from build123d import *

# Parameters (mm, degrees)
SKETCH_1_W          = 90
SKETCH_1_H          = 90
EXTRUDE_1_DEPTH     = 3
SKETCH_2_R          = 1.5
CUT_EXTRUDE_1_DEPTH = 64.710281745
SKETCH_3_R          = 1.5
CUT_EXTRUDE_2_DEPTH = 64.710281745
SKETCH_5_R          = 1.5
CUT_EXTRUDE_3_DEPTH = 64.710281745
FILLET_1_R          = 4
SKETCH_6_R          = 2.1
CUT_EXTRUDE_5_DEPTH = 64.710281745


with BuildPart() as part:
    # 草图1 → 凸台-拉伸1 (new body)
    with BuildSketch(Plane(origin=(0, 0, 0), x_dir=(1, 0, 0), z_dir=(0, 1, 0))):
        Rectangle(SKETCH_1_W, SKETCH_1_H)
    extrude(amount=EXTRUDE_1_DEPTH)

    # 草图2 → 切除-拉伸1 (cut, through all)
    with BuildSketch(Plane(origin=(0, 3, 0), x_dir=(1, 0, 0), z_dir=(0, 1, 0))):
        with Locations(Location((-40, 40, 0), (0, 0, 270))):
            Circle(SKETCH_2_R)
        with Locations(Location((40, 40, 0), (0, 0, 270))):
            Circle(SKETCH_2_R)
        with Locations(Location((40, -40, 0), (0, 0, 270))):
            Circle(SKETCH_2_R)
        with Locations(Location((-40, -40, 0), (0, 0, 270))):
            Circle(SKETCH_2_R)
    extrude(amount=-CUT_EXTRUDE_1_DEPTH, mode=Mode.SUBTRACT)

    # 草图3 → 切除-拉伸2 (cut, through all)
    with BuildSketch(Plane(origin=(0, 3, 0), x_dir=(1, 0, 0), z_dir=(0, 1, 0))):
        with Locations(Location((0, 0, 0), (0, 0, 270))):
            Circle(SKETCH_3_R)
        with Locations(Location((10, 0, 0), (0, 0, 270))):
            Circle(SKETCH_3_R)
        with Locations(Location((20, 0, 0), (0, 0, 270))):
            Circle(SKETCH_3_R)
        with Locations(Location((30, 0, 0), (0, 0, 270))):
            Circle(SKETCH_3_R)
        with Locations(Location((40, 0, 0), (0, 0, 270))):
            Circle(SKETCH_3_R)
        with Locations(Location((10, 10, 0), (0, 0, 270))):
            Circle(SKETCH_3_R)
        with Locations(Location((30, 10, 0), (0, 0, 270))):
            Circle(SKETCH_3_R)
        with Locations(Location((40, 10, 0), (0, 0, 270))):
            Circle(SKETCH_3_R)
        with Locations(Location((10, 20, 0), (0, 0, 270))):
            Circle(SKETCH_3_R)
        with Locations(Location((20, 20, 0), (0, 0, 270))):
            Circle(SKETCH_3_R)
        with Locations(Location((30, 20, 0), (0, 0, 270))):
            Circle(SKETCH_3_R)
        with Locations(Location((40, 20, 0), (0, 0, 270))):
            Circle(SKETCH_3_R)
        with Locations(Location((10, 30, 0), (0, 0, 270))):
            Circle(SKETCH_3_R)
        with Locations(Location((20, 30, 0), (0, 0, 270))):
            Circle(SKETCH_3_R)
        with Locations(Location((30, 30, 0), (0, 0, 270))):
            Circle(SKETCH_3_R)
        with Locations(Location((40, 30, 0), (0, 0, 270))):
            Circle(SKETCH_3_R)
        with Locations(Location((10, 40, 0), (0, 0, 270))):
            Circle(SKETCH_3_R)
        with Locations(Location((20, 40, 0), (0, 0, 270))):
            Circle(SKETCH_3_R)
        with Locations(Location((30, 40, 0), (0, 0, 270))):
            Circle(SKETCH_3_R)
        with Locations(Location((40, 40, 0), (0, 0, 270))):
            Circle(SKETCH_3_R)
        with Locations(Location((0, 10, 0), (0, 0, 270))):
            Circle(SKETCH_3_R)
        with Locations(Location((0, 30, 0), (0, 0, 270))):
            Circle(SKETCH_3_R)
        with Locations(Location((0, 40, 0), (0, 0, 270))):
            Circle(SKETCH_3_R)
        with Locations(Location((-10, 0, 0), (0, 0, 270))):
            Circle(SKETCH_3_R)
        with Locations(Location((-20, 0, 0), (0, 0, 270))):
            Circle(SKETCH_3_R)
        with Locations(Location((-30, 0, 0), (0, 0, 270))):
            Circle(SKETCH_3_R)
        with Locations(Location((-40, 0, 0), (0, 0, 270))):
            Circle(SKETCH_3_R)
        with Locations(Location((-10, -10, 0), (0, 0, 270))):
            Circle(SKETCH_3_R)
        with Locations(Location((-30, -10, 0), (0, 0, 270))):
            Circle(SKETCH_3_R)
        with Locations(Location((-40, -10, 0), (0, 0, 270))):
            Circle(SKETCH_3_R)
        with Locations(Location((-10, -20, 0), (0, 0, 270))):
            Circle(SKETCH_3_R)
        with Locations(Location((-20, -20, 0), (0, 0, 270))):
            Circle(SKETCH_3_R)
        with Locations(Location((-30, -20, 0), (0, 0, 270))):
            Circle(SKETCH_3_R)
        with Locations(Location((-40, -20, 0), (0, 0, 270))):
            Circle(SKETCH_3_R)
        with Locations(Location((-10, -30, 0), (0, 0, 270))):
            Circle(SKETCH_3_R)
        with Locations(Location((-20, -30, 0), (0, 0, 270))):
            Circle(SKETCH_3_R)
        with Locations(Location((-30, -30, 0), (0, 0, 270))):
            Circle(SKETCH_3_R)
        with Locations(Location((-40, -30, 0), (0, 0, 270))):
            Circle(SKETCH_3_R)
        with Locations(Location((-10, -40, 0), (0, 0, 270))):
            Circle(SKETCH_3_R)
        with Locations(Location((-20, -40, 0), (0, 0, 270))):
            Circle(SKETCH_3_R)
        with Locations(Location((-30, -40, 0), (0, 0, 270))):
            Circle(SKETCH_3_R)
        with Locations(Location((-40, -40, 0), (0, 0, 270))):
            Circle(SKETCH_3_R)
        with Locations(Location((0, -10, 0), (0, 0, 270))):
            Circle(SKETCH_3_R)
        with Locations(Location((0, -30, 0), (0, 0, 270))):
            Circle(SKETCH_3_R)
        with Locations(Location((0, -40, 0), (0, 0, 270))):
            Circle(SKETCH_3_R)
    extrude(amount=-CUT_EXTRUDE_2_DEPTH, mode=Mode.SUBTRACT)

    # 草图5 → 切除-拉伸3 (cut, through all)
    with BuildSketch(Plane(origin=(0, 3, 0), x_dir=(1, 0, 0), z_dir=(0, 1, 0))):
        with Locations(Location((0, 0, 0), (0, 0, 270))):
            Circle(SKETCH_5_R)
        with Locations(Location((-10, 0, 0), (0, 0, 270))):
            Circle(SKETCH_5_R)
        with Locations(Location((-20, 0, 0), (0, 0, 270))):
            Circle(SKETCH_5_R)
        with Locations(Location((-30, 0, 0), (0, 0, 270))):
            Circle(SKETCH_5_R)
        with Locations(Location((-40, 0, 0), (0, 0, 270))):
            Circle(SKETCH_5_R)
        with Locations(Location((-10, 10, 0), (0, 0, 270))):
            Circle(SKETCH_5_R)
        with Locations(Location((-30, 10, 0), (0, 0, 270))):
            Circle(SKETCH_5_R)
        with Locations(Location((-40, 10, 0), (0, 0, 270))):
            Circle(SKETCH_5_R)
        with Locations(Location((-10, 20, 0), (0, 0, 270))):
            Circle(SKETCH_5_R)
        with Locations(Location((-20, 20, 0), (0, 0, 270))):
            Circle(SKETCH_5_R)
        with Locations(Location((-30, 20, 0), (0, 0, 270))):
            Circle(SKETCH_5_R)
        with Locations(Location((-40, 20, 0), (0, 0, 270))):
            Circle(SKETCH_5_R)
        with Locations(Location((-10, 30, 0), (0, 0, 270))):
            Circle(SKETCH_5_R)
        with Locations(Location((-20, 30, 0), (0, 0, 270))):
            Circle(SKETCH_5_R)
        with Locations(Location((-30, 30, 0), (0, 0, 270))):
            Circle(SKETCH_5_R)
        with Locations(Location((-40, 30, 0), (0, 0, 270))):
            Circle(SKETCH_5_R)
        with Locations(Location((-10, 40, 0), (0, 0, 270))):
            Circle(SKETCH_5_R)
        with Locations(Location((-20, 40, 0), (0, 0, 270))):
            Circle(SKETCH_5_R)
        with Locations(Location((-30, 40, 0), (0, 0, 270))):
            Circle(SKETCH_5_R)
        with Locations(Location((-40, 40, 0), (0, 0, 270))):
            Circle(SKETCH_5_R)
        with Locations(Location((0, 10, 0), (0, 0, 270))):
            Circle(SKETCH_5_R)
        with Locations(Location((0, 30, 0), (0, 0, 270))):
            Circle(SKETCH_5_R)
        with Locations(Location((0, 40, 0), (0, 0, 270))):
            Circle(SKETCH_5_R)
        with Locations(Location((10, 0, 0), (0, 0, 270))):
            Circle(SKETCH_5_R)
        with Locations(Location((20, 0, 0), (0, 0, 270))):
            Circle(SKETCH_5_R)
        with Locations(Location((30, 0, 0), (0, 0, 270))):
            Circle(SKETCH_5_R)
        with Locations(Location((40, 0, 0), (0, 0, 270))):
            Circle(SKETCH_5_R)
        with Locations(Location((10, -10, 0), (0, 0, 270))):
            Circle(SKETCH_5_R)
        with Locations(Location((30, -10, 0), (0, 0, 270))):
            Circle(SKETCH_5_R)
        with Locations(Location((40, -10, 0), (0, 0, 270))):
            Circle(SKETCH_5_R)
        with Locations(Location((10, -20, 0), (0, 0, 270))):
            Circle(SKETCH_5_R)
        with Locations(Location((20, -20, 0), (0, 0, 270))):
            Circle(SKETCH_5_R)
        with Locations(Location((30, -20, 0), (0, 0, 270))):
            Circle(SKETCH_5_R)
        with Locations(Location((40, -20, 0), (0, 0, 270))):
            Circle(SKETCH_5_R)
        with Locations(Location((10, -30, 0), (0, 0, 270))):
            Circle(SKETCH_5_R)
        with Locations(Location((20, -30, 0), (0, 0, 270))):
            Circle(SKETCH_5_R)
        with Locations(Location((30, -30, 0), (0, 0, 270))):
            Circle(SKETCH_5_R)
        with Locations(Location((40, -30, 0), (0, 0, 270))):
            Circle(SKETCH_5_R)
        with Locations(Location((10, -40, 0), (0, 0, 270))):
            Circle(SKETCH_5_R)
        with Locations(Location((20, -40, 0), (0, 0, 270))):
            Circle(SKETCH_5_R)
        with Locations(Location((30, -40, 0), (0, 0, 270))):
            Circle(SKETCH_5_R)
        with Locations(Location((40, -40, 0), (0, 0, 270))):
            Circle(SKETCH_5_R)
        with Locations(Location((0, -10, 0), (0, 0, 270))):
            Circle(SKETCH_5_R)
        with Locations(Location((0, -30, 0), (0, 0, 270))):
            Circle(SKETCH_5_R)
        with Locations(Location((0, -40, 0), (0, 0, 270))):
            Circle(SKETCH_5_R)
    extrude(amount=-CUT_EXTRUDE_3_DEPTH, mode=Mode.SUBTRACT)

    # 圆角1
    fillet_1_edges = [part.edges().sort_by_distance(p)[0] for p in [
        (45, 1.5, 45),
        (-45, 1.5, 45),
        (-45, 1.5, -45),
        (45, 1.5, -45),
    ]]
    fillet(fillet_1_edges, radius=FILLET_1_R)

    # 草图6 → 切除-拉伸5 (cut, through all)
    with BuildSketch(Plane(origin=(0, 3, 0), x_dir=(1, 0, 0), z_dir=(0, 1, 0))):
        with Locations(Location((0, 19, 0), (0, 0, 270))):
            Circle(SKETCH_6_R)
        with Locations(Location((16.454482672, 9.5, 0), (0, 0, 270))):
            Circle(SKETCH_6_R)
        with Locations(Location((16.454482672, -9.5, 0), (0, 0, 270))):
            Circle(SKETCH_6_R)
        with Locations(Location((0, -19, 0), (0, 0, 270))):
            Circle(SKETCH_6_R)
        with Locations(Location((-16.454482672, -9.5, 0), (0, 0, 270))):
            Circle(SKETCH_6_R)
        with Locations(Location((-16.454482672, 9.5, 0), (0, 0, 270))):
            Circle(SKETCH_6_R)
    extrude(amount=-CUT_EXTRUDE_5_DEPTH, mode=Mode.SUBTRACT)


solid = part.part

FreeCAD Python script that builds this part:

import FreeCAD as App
import Part
import Sketcher
from FreeCAD import Vector
Q = App.Units.Quantity


def edges_at(feature, points):
    """Names of the edges that pass closest to the given points."""
    edges = feature.Shape.Edges
    near = lambda p: min(range(len(edges)), key=lambda i: edges[i].distToShape(Part.Vertex(*p))[0])
    return sorted({f"Edge{near(p) + 1}" for p in points})


def add_polygon(sketch, points):
    """Adds a closed chain of lines whose ends are joined by coincident constraints."""
    first, n = sketch.GeometryCount, len(points)
    for a, b in zip(points, points[1:] + points[:1]):
        sketch.addGeometry(Part.LineSegment(App.Vector(*a, 0), App.Vector(*b, 0)), False)
    for i in range(n):
        sketch.addConstraint(Sketcher.Constraint("Coincident", first + i, 2, first + (i + 1) % n, 1))

doc = App.newDocument("Part")
body = doc.addObject("PartDesign::Body", "Body")

sketch1 = body.newObject("Sketcher::SketchObject", "Sketch")
sketch1.AttachmentSupport = (doc.getObject("XZ_Plane"), [""])
sketch1.MapMode = "FlatFace"
add_polygon(sketch1, [(-45, -45), (-45, 45), (45, 45), (45, -45)])
sketch1.addConstraint(Sketcher.Constraint("Vertical", 0))
sketch1.addConstraint(Sketcher.Constraint("Horizontal", 1))
sketch1.addConstraint(Sketcher.Constraint("Vertical", 2))
sketch1.addConstraint(Sketcher.Constraint("Horizontal", 3))
sketch1.addConstraint(Sketcher.Constraint("Symmetric", 0, 2, 2, 2, -1, 1))
sketch1.addConstraint(Sketcher.Constraint("Equal", 3, 0))
sketch1.addConstraint(Sketcher.Constraint("DistanceX", 1, 1, 1, 2, Q("90 mm")))
pad1 = body.newObject("PartDesign::Pad", "Pad")
pad1.Profile = sketch1
pad1.Length = 3
pad1.Reversed = True

sketch2 = body.newObject("Sketcher::SketchObject", "Sketch001")
sketch2.AttachmentSupport = (doc.getObject("XZ_Plane"), [""])
sketch2.MapMode = "FlatFace"
sketch2.AttachmentOffset = App.Placement(Vector(0, 0, -3), App.Rotation())
sketch2.addGeometry(Part.Circle(Vector(-40, -40, 0), Vector(0, 0, 1), 1.5), False)
sketch2.addGeometry(Part.Circle(Vector(40, -40, 0), Vector(0, 0, 1), 1.5), False)
sketch2.addGeometry(Part.Circle(Vector(40, 40, 0), Vector(0, 0, 1), 1.5), False)
sketch2.addGeometry(Part.Circle(Vector(-40, 40, 0), Vector(0, 0, 1), 1.5), False)
sketch2.addConstraint(Sketcher.Constraint("Equal", 0, 1))
sketch2.addConstraint(Sketcher.Constraint("Equal", 1, 2))
sketch2.addConstraint(Sketcher.Constraint("Equal", 2, 3))
sketch2.addConstraint(Sketcher.Constraint("Symmetric", 0, 3, 2, 3, -1, 1))
sketch2.addConstraint(Sketcher.Constraint("Symmetric", 1, 3, 3, 3, -1, 1))
sketch2.addConstraint(Sketcher.Constraint("Symmetric", 0, 3, 1, 3, -2))
sketch2.addConstraint(Sketcher.Constraint("Diameter", 0, Q("3 mm")))
sketch2.addConstraint(Sketcher.Constraint("DistanceX", 0, 3, -1, 1, Q("40 mm")))
sketch2.addConstraint(Sketcher.Constraint("DistanceY", 0, 3, -1, 1, Q("40 mm")))
pocket1 = body.newObject("PartDesign::Pocket", "Pocket")
pocket1.Profile = sketch2
pocket1.Type = "ThroughAll"
pocket1.Reversed = True

sketch3 = body.newObject("Sketcher::SketchObject", "Sketch002")
sketch3.AttachmentSupport = (doc.getObject("XZ_Plane"), [""])
sketch3.MapMode = "FlatFace"
sketch3.AttachmentOffset = App.Placement(Vector(0, 0, -3), App.Rotation())
sketch3.addGeometry(Part.Circle(Vector(0, 0, 0), Vector(0, 0, 1), 1.5), False)
sketch3.addGeometry(Part.Circle(Vector(10, 0, 0), Vector(0, 0, 1), 1.5), False)
sketch3.addGeometry(Part.Circle(Vector(20, 0, 0), Vector(0, 0, 1), 1.5), False)
sketch3.addGeometry(Part.Circle(Vector(30, 0, 0), Vector(0, 0, 1), 1.5), False)
sketch3.addGeometry(Part.Circle(Vector(40, 0, 0), Vector(0, 0, 1), 1.5), False)
sketch3.addGeometry(Part.Circle(Vector(10, -10, 0), Vector(0, 0, 1), 1.5), False)
sketch3.addGeometry(Part.Circle(Vector(30, -10, 0), Vector(0, 0, 1), 1.5), False)
sketch3.addGeometry(Part.Circle(Vector(40, -10, 0), Vector(0, 0, 1), 1.5), False)
sketch3.addGeometry(Part.Circle(Vector(10, -20, 0), Vector(0, 0, 1), 1.5), False)
sketch3.addGeometry(Part.Circle(Vector(20, -20, 0), Vector(0, 0, 1), 1.5), False)
sketch3.addGeometry(Part.Circle(Vector(30, -20, 0), Vector(0, 0, 1), 1.5), False)
sketch3.addGeometry(Part.Circle(Vector(40, -20, 0), Vector(0, 0, 1), 1.5), False)
sketch3.addGeometry(Part.Circle(Vector(10, -30, 0), Vector(0, 0, 1), 1.5), False)
sketch3.addGeometry(Part.Circle(Vector(20, -30, 0), Vector(0, 0, 1), 1.5), False)
sketch3.addGeometry(Part.Circle(Vector(30, -30, 0), Vector(0, 0, 1), 1.5), False)
sketch3.addGeometry(Part.Circle(Vector(40, -30, 0), Vector(0, 0, 1), 1.5), False)
sketch3.addGeometry(Part.Circle(Vector(10, -40, 0), Vector(0, 0, 1), 1.5), False)
sketch3.addGeometry(Part.Circle(Vector(20, -40, 0), Vector(0, 0, 1), 1.5), False)
sketch3.addGeometry(Part.Circle(Vector(30, -40, 0), Vector(0, 0, 1), 1.5), False)
sketch3.addGeometry(Part.Circle(Vector(40, -40, 0), Vector(0, 0, 1), 1.5), False)
sketch3.addGeometry(Part.Circle(Vector(0, -10, 0), Vector(0, 0, 1), 1.5), False)
sketch3.addGeometry(Part.Circle(Vector(0, -30, 0), Vector(0, 0, 1), 1.5), False)
sketch3.addGeometry(Part.Circle(Vector(0, -40, 0), Vector(0, 0, 1), 1.5), False)
sketch3.addGeometry(Part.Circle(Vector(-10, 0, 0), Vector(0, 0, 1), 1.5), False)
sketch3.addGeometry(Part.Circle(Vector(-20, 0, 0), Vector(0, 0, 1), 1.5), False)
sketch3.addGeometry(Part.Circle(Vector(-30, 0, 0), Vector(0, 0, 1), 1.5), False)
sketch3.addGeometry(Part.Circle(Vector(-40, 0, 0), Vector(0, 0, 1), 1.5), False)
sketch3.addGeometry(Part.Circle(Vector(-10, 10, 0), Vector(0, 0, 1), 1.5), False)
sketch3.addGeometry(Part.Circle(Vector(-30, 10, 0), Vector(0, 0, 1), 1.5), False)
sketch3.addGeometry(Part.Circle(Vector(-40, 10, 0), Vector(0, 0, 1), 1.5), False)
sketch3.addGeometry(Part.Circle(Vector(-10, 20, 0), Vector(0, 0, 1), 1.5), False)
sketch3.addGeometry(Part.Circle(Vector(-20, 20, 0), Vector(0, 0, 1), 1.5), False)
sketch3.addGeometry(Part.Circle(Vector(-30, 20, 0), Vector(0, 0, 1), 1.5), False)
sketch3.addGeometry(Part.Circle(Vector(-40, 20, 0), Vector(0, 0, 1), 1.5), False)
sketch3.addGeometry(Part.Circle(Vector(-10, 30, 0), Vector(0, 0, 1), 1.5), False)
sketch3.addGeometry(Part.Circle(Vector(-20, 30, 0), Vector(0, 0, 1), 1.5), False)
sketch3.addGeometry(Part.Circle(Vector(-30, 30, 0), Vector(0, 0, 1), 1.5), False)
sketch3.addGeometry(Part.Circle(Vector(-40, 30, 0), Vector(0, 0, 1), 1.5), False)
sketch3.addGeometry(Part.Circle(Vector(-10, 40, 0), Vector(0, 0, 1), 1.5), False)
sketch3.addGeometry(Part.Circle(Vector(-20, 40, 0), Vector(0, 0, 1), 1.5), False)
sketch3.addGeometry(Part.Circle(Vector(-30, 40, 0), Vector(0, 0, 1), 1.5), False)
sketch3.addGeometry(Part.Circle(Vector(-40, 40, 0), Vector(0, 0, 1), 1.5), False)
sketch3.addGeometry(Part.Circle(Vector(0, 10, 0), Vector(0, 0, 1), 1.5), False)
sketch3.addGeometry(Part.Circle(Vector(0, 30, 0), Vector(0, 0, 1), 1.5), False)
sketch3.addGeometry(Part.Circle(Vector(0, 40, 0), Vector(0, 0, 1), 1.5), False)
sketch3.addConstraint(Sketcher.Constraint("Coincident", 0, 3, -1, 1))
sketch3.addConstraint(Sketcher.Constraint("Equal", 0, 1))
sketch3.addConstraint(Sketcher.Constraint("Equal", 1, 2))
sketch3.addConstraint(Sketcher.Constraint("Equal", 2, 3))
sketch3.addConstraint(Sketcher.Constraint("Equal", 3, 4))
sketch3.addConstraint(Sketcher.Constraint("Equal", 4, 5))
sketch3.addConstraint(Sketcher.Constraint("Equal", 5, 6))
sketch3.addConstraint(Sketcher.Constraint("Equal", 6, 7))
sketch3.addConstraint(Sketcher.Constraint("Equal", 7, 8))
sketch3.addConstraint(Sketcher.Constraint("Equal", 8, 9))
sketch3.addConstraint(Sketcher.Constraint("Equal", 9, 10))
sketch3.addConstraint(Sketcher.Constraint("Equal", 10, 11))
sketch3.addConstraint(Sketcher.Constraint("Equal", 11, 12))
sketch3.addConstraint(Sketcher.Constraint("Equal", 12, 13))
sketch3.addConstraint(Sketcher.Constraint("Equal", 13, 14))
sketch3.addConstraint(Sketcher.Constraint("Equal", 14, 15))
sketch3.addConstraint(Sketcher.Constraint("Equal", 15, 16))
sketch3.addConstraint(Sketcher.Constraint("Equal", 16, 17))
sketch3.addConstraint(Sketcher.Constraint("Equal", 17, 18))
sketch3.addConstraint(Sketcher.Constraint("Equal", 18, 19))
sketch3.addConstraint(Sketcher.Constraint("Equal", 19, 20))
sketch3.addConstraint(Sketcher.Constraint("Equal", 20, 21))
sketch3.addConstraint(Sketcher.Constraint("Equal", 21, 22))
sketch3.addConstraint(Sketcher.Constraint("Equal", 22, 23))
sketch3.addConstraint(Sketcher.Constraint("Equal", 23, 24))
sketch3.addConstraint(Sketcher.Constraint("Equal", 24, 25))
sketch3.addConstraint(Sketcher.Constraint("Equal", 25, 26))
sketch3.addConstraint(Sketcher.Constraint("Equal", 26, 27))
sketch3.addConstraint(Sketcher.Constraint("Equal", 27, 28))
sketch3.addConstraint(Sketcher.Constraint("Equal", 28, 29))
sketch3.addConstraint(Sketcher.Constraint("Equal", 29, 30))
sketch3.addConstraint(Sketcher.Constraint("Equal", 30, 31))
sketch3.addConstraint(Sketcher.Constraint("Equal", 31, 32))
sketch3.addConstraint(Sketcher.Constraint("Equal", 32, 33))
sketch3.addConstraint(Sketcher.Constraint("Equal", 33, 34))
sketch3.addConstraint(Sketcher.Constraint("Equal", 34, 35))
sketch3.addConstraint(Sketcher.Constraint("Equal", 35, 36))
sketch3.addConstraint(Sketcher.Constraint("Equal", 36, 37))
sketch3.addConstraint(Sketcher.Constraint("Equal", 37, 38))
sketch3.addConstraint(Sketcher.Constraint("Equal", 38, 39))
sketch3.addConstraint(Sketcher.Constraint("Equal", 39, 40))
sketch3.addConstraint(Sketcher.Constraint("Equal", 40, 41))
sketch3.addConstraint(Sketcher.Constraint("Equal", 41, 42))
sketch3.addConstraint(Sketcher.Constraint("Equal", 42, 43))
sketch3.addConstraint(Sketcher.Constraint("Equal", 43, 44))
sketch3.addConstraint(Sketcher.Constraint("Symmetric", 1, 3, 23, 3, -1, 1))
sketch3.addConstraint(Sketcher.Constraint("Symmetric", 2, 3, 24, 3, -1, 1))
sketch3.addConstraint(Sketcher.Constraint("Symmetric", 3, 3, 25, 3, -1, 1))
sketch3.addConstraint(Sketcher.Constraint("Symmetric", 4, 3, 26, 3, -1, 1))
sketch3.addConstraint(Sketcher.Constraint("Symmetric", 5, 3, 27, 3, -1, 1))
sketch3.addConstraint(Sketcher.Constraint("Symmetric", 6, 3, 28, 3, -1, 1))
sketch3.addConstraint(Sketcher.Constraint("Symmetric", 7, 3, 29, 3, -1, 1))
sketch3.addConstraint(Sketcher.Constraint("Symmetric", 8, 3, 30, 3, -1, 1))
sketch3.addConstraint(Sketcher.Constraint("Symmetric", 9, 3, 31, 3, -1, 1))
sketch3.addConstraint(Sketcher.Constraint("Symmetric", 10, 3, 32, 3, -1, 1))
sketch3.addConstraint(Sketcher.Constraint("Symmetric", 11, 3, 33, 3, -1, 1))
sketch3.addConstraint(Sketcher.Constraint("Symmetric", 12, 3, 34, 3, -1, 1))
sketch3.addConstraint(Sketcher.Constraint("Symmetric", 13, 3, 35, 3, -1, 1))
sketch3.addConstraint(Sketcher.Constraint("Symmetric", 14, 3, 36, 3, -1, 1))
sketch3.addConstraint(Sketcher.Constraint("Symmetric", 15, 3, 37, 3, -1, 1))
sketch3.addConstraint(Sketcher.Constraint("Symmetric", 16, 3, 38, 3, -1, 1))
sketch3.addConstraint(Sketcher.Constraint("Symmetric", 17, 3, 39, 3, -1, 1))
sketch3.addConstraint(Sketcher.Constraint("Symmetric", 18, 3, 40, 3, -1, 1))
sketch3.addConstraint(Sketcher.Constraint("Symmetric", 19, 3, 41, 3, -1, 1))
sketch3.addConstraint(Sketcher.Constraint("Symmetric", 20, 3, 42, 3, -1, 1))
sketch3.addConstraint(Sketcher.Constraint("Symmetric", 21, 3, 43, 3, -1, 1))
sketch3.addConstraint(Sketcher.Constraint("Symmetric", 22, 3, 44, 3, -1, 1))
sketch3.addConstraint(Sketcher.Constraint("PointOnObject", 1, 3, -1))
sketch3.addConstraint(Sketcher.Constraint("PointOnObject", 2, 3, -1))
sketch3.addConstraint(Sketcher.Constraint("PointOnObject", 3, 3, -1))
sketch3.addConstraint(Sketcher.Constraint("PointOnObject", 4, 3, -1))
sketch3.addConstraint(Sketcher.Constraint("PointOnObject", 20, 3, -2))
sketch3.addConstraint(Sketcher.Constraint("PointOnObject", 21, 3, -2))
sketch3.addConstraint(Sketcher.Constraint("PointOnObject", 22, 3, -2))
sketch3.addConstraint(Sketcher.Constraint("Horizontal", 5, 3, 6, 3))
sketch3.addConstraint(Sketcher.Constraint("Horizontal", 6, 3, 7, 3))
sketch3.addConstraint(Sketcher.Constraint("Horizontal", 8, 3, 9, 3))
sketch3.addConstraint(Sketcher.Constraint("Horizontal", 9, 3, 10, 3))
sketch3.addConstraint(Sketcher.Constraint("Horizontal", 10, 3, 11, 3))
sketch3.addConstraint(Sketcher.Constraint("Horizontal", 12, 3, 13, 3))
sketch3.addConstraint(Sketcher.Constraint("Horizontal", 13, 3, 14, 3))
sketch3.addConstraint(Sketcher.Constraint("Horizontal", 14, 3, 15, 3))
sketch3.addConstraint(Sketcher.Constraint("Horizontal", 16, 3, 17, 3))
sketch3.addConstraint(Sketcher.Constraint("Horizontal", 17, 3, 18, 3))
sketch3.addConstraint(Sketcher.Constraint("Horizontal", 18, 3, 19, 3))
sketch3.addConstraint(Sketcher.Constraint("Horizontal", 7, 3, 20, 3))
sketch3.addConstraint(Sketcher.Constraint("Horizontal", 15, 3, 21, 3))
sketch3.addConstraint(Sketcher.Constraint("Horizontal", 19, 3, 22, 3))
sketch3.addConstraint(Sketcher.Constraint("Vertical", 1, 3, 5, 3))
sketch3.addConstraint(Sketcher.Constraint("Vertical", 3, 3, 6, 3))
sketch3.addConstraint(Sketcher.Constraint("Vertical", 4, 3, 7, 3))
sketch3.addConstraint(Sketcher.Constraint("Vertical", 5, 3, 8, 3))
sketch3.addConstraint(Sketcher.Constraint("Vertical", 2, 3, 9, 3))
sketch3.addConstraint(Sketcher.Constraint("Vertical", 6, 3, 10, 3))
sketch3.addConstraint(Sketcher.Constraint("Vertical", 7, 3, 11, 3))
sketch3.addConstraint(Sketcher.Constraint("Vertical", 8, 3, 12, 3))
sketch3.addConstraint(Sketcher.Constraint("Vertical", 9, 3, 13, 3))
sketch3.addConstraint(Sketcher.Constraint("Vertical", 10, 3, 14, 3))
sketch3.addConstraint(Sketcher.Constraint("Vertical", 11, 3, 15, 3))
sketch3.addConstraint(Sketcher.Constraint("Vertical", 12, 3, 16, 3))
sketch3.addConstraint(Sketcher.Constraint("Vertical", 13, 3, 17, 3))
sketch3.addConstraint(Sketcher.Constraint("Vertical", 14, 3, 18, 3))
sketch3.addConstraint(Sketcher.Constraint("Vertical", 15, 3, 19, 3))
sketch3.addConstraint(Sketcher.Constraint("Diameter", 0, Q("3 mm")))
sketch3.addConstraint(Sketcher.Constraint("DistanceX", -1, 1, 1, 3, Q("10 mm")))
sketch3.addConstraint(Sketcher.Constraint("DistanceX", -1, 1, 2, 3, Q("20 mm")))
sketch3.addConstraint(Sketcher.Constraint("DistanceX", -1, 1, 3, 3, Q("30 mm")))
sketch3.addConstraint(Sketcher.Constraint("DistanceX", -1, 1, 4, 3, Q("40 mm")))
sketch3.addConstraint(Sketcher.Constraint("DistanceY", 5, 3, -1, 1, Q("10 mm")))
sketch3.addConstraint(Sketcher.Constraint("DistanceY", 8, 3, -1, 1, Q("20 mm")))
sketch3.addConstraint(Sketcher.Constraint("DistanceY", 12, 3, -1, 1, Q("30 mm")))
sketch3.addConstraint(Sketcher.Constraint("DistanceY", 16, 3, -1, 1, Q("40 mm")))
pocket2 = body.newObject("PartDesign::Pocket", "Pocket001")
pocket2.Profile = sketch3
pocket2.Type = "ThroughAll"
pocket2.Reversed = True

sketch4 = body.newObject("Sketcher::SketchObject", "Sketch003")
sketch4.AttachmentSupport = (doc.getObject("XZ_Plane"), [""])
sketch4.MapMode = "FlatFace"
sketch4.AttachmentOffset = App.Placement(Vector(0, 0, -3), App.Rotation())
sketch4.addGeometry(Part.Circle(Vector(0, 0, 0), Vector(0, 0, 1), 1.5), False)
sketch4.addGeometry(Part.Circle(Vector(-10, 0, 0), Vector(0, 0, 1), 1.5), False)
sketch4.addGeometry(Part.Circle(Vector(-20, 0, 0), Vector(0, 0, 1), 1.5), False)
sketch4.addGeometry(Part.Circle(Vector(-30, 0, 0), Vector(0, 0, 1), 1.5), False)
sketch4.addGeometry(Part.Circle(Vector(-40, 0, 0), Vector(0, 0, 1), 1.5), False)
sketch4.addGeometry(Part.Circle(Vector(-10, -10, 0), Vector(0, 0, 1), 1.5), False)
sketch4.addGeometry(Part.Circle(Vector(-30, -10, 0), Vector(0, 0, 1), 1.5), False)
sketch4.addGeometry(Part.Circle(Vector(-40, -10, 0), Vector(0, 0, 1), 1.5), False)
sketch4.addGeometry(Part.Circle(Vector(-10, -20, 0), Vector(0, 0, 1), 1.5), False)
sketch4.addGeometry(Part.Circle(Vector(-20, -20, 0), Vector(0, 0, 1), 1.5), False)
sketch4.addGeometry(Part.Circle(Vector(-30, -20, 0), Vector(0, 0, 1), 1.5), False)
sketch4.addGeometry(Part.Circle(Vector(-40, -20, 0), Vector(0, 0, 1), 1.5), False)
sketch4.addGeometry(Part.Circle(Vector(-10, -30, 0), Vector(0, 0, 1), 1.5), False)
sketch4.addGeometry(Part.Circle(Vector(-20, -30, 0), Vector(0, 0, 1), 1.5), False)
sketch4.addGeometry(Part.Circle(Vector(-30, -30, 0), Vector(0, 0, 1), 1.5), False)
sketch4.addGeometry(Part.Circle(Vector(-40, -30, 0), Vector(0, 0, 1), 1.5), False)
sketch4.addGeometry(Part.Circle(Vector(-10, -40, 0), Vector(0, 0, 1), 1.5), False)
sketch4.addGeometry(Part.Circle(Vector(-20, -40, 0), Vector(0, 0, 1), 1.5), False)
sketch4.addGeometry(Part.Circle(Vector(-30, -40, 0), Vector(0, 0, 1), 1.5), False)
sketch4.addGeometry(Part.Circle(Vector(-40, -40, 0), Vector(0, 0, 1), 1.5), False)
sketch4.addGeometry(Part.Circle(Vector(0, -10, 0), Vector(0, 0, 1), 1.5), False)
sketch4.addGeometry(Part.Circle(Vector(0, -30, 0), Vector(0, 0, 1), 1.5), False)
sketch4.addGeometry(Part.Circle(Vector(0, -40, 0), Vector(0, 0, 1), 1.5), False)
sketch4.addGeometry(Part.Circle(Vector(10, 0, 0), Vector(0, 0, 1), 1.5), False)
sketch4.addGeometry(Part.Circle(Vector(20, 0, 0), Vector(0, 0, 1), 1.5), False)
sketch4.addGeometry(Part.Circle(Vector(30, 0, 0), Vector(0, 0, 1), 1.5), False)
sketch4.addGeometry(Part.Circle(Vector(40, 0, 0), Vector(0, 0, 1), 1.5), False)
sketch4.addGeometry(Part.Circle(Vector(10, 10, 0), Vector(0, 0, 1), 1.5), False)
sketch4.addGeometry(Part.Circle(Vector(30, 10, 0), Vector(0, 0, 1), 1.5), False)
sketch4.addGeometry(Part.Circle(Vector(40, 10, 0), Vector(0, 0, 1), 1.5), False)
sketch4.addGeometry(Part.Circle(Vector(10, 20, 0), Vector(0, 0, 1), 1.5), False)
sketch4.addGeometry(Part.Circle(Vector(20, 20, 0), Vector(0, 0, 1), 1.5), False)
sketch4.addGeometry(Part.Circle(Vector(30, 20, 0), Vector(0, 0, 1), 1.5), False)
sketch4.addGeometry(Part.Circle(Vector(40, 20, 0), Vector(0, 0, 1), 1.5), False)
sketch4.addGeometry(Part.Circle(Vector(10, 30, 0), Vector(0, 0, 1), 1.5), False)
sketch4.addGeometry(Part.Circle(Vector(20, 30, 0), Vector(0, 0, 1), 1.5), False)
sketch4.addGeometry(Part.Circle(Vector(30, 30, 0), Vector(0, 0, 1), 1.5), False)
sketch4.addGeometry(Part.Circle(Vector(40, 30, 0), Vector(0, 0, 1), 1.5), False)
sketch4.addGeometry(Part.Circle(Vector(10, 40, 0), Vector(0, 0, 1), 1.5), False)
sketch4.addGeometry(Part.Circle(Vector(20, 40, 0), Vector(0, 0, 1), 1.5), False)
sketch4.addGeometry(Part.Circle(Vector(30, 40, 0), Vector(0, 0, 1), 1.5), False)
sketch4.addGeometry(Part.Circle(Vector(40, 40, 0), Vector(0, 0, 1), 1.5), False)
sketch4.addGeometry(Part.Circle(Vector(0, 10, 0), Vector(0, 0, 1), 1.5), False)
sketch4.addGeometry(Part.Circle(Vector(0, 30, 0), Vector(0, 0, 1), 1.5), False)
sketch4.addGeometry(Part.Circle(Vector(0, 40, 0), Vector(0, 0, 1), 1.5), False)
sketch4.addConstraint(Sketcher.Constraint("Coincident", 0, 3, -1, 1))
sketch4.addConstraint(Sketcher.Constraint("Equal", 0, 1))
sketch4.addConstraint(Sketcher.Constraint("Equal", 1, 2))
sketch4.addConstraint(Sketcher.Constraint("Equal", 2, 3))
sketch4.addConstraint(Sketcher.Constraint("Equal", 3, 4))
sketch4.addConstraint(Sketcher.Constraint("Equal", 4, 5))
sketch4.addConstraint(Sketcher.Constraint("Equal", 5, 6))
sketch4.addConstraint(Sketcher.Constraint("Equal", 6, 7))
sketch4.addConstraint(Sketcher.Constraint("Equal", 7, 8))
sketch4.addConstraint(Sketcher.Constraint("Equal", 8, 9))
sketch4.addConstraint(Sketcher.Constraint("Equal", 9, 10))
sketch4.addConstraint(Sketcher.Constraint("Equal", 10, 11))
sketch4.addConstraint(Sketcher.Constraint("Equal", 11, 12))
sketch4.addConstraint(Sketcher.Constraint("Equal", 12, 13))
sketch4.addConstraint(Sketcher.Constraint("Equal", 13, 14))
sketch4.addConstraint(Sketcher.Constraint("Equal", 14, 15))
sketch4.addConstraint(Sketcher.Constraint("Equal", 15, 16))
sketch4.addConstraint(Sketcher.Constraint("Equal", 16, 17))
sketch4.addConstraint(Sketcher.Constraint("Equal", 17, 18))
sketch4.addConstraint(Sketcher.Constraint("Equal", 18, 19))
sketch4.addConstraint(Sketcher.Constraint("Equal", 19, 20))
sketch4.addConstraint(Sketcher.Constraint("Equal", 20, 21))
sketch4.addConstraint(Sketcher.Constraint("Equal", 21, 22))
sketch4.addConstraint(Sketcher.Constraint("Equal", 22, 23))
sketch4.addConstraint(Sketcher.Constraint("Equal", 23, 24))
sketch4.addConstraint(Sketcher.Constraint("Equal", 24, 25))
sketch4.addConstraint(Sketcher.Constraint("Equal", 25, 26))
sketch4.addConstraint(Sketcher.Constraint("Equal", 26, 27))
sketch4.addConstraint(Sketcher.Constraint("Equal", 27, 28))
sketch4.addConstraint(Sketcher.Constraint("Equal", 28, 29))
sketch4.addConstraint(Sketcher.Constraint("Equal", 29, 30))
sketch4.addConstraint(Sketcher.Constraint("Equal", 30, 31))
sketch4.addConstraint(Sketcher.Constraint("Equal", 31, 32))
sketch4.addConstraint(Sketcher.Constraint("Equal", 32, 33))
sketch4.addConstraint(Sketcher.Constraint("Equal", 33, 34))
sketch4.addConstraint(Sketcher.Constraint("Equal", 34, 35))
sketch4.addConstraint(Sketcher.Constraint("Equal", 35, 36))
sketch4.addConstraint(Sketcher.Constraint("Equal", 36, 37))
sketch4.addConstraint(Sketcher.Constraint("Equal", 37, 38))
sketch4.addConstraint(Sketcher.Constraint("Equal", 38, 39))
sketch4.addConstraint(Sketcher.Constraint("Equal", 39, 40))
sketch4.addConstraint(Sketcher.Constraint("Equal", 40, 41))
sketch4.addConstraint(Sketcher.Constraint("Equal", 41, 42))
sketch4.addConstraint(Sketcher.Constraint("Equal", 42, 43))
sketch4.addConstraint(Sketcher.Constraint("Equal", 43, 44))
sketch4.addConstraint(Sketcher.Constraint("Symmetric", 1, 3, 23, 3, -1, 1))
sketch4.addConstraint(Sketcher.Constraint("Symmetric", 2, 3, 24, 3, -1, 1))
sketch4.addConstraint(Sketcher.Constraint("Symmetric", 3, 3, 25, 3, -1, 1))
sketch4.addConstraint(Sketcher.Constraint("Symmetric", 4, 3, 26, 3, -1, 1))
sketch4.addConstraint(Sketcher.Constraint("Symmetric", 5, 3, 27, 3, -1, 1))
sketch4.addConstraint(Sketcher.Constraint("Symmetric", 6, 3, 28, 3, -1, 1))
sketch4.addConstraint(Sketcher.Constraint("Symmetric", 7, 3, 29, 3, -1, 1))
sketch4.addConstraint(Sketcher.Constraint("Symmetric", 8, 3, 30, 3, -1, 1))
sketch4.addConstraint(Sketcher.Constraint("Symmetric", 9, 3, 31, 3, -1, 1))
sketch4.addConstraint(Sketcher.Constraint("Symmetric", 10, 3, 32, 3, -1, 1))
sketch4.addConstraint(Sketcher.Constraint("Symmetric", 11, 3, 33, 3, -1, 1))
sketch4.addConstraint(Sketcher.Constraint("Symmetric", 12, 3, 34, 3, -1, 1))
sketch4.addConstraint(Sketcher.Constraint("Symmetric", 13, 3, 35, 3, -1, 1))
sketch4.addConstraint(Sketcher.Constraint("Symmetric", 14, 3, 36, 3, -1, 1))
sketch4.addConstraint(Sketcher.Constraint("Symmetric", 15, 3, 37, 3, -1, 1))
sketch4.addConstraint(Sketcher.Constraint("Symmetric", 16, 3, 38, 3, -1, 1))
sketch4.addConstraint(Sketcher.Constraint("Symmetric", 17, 3, 39, 3, -1, 1))
sketch4.addConstraint(Sketcher.Constraint("Symmetric", 18, 3, 40, 3, -1, 1))
sketch4.addConstraint(Sketcher.Constraint("Symmetric", 19, 3, 41, 3, -1, 1))
sketch4.addConstraint(Sketcher.Constraint("Symmetric", 20, 3, 42, 3, -1, 1))
sketch4.addConstraint(Sketcher.Constraint("Symmetric", 21, 3, 43, 3, -1, 1))
sketch4.addConstraint(Sketcher.Constraint("Symmetric", 22, 3, 44, 3, -1, 1))
sketch4.addConstraint(Sketcher.Constraint("PointOnObject", 1, 3, -1))
sketch4.addConstraint(Sketcher.Constraint("PointOnObject", 2, 3, -1))
sketch4.addConstraint(Sketcher.Constraint("PointOnObject", 3, 3, -1))
sketch4.addConstraint(Sketcher.Constraint("PointOnObject", 4, 3, -1))
sketch4.addConstraint(Sketcher.Constraint("PointOnObject", 20, 3, -2))
sketch4.addConstraint(Sketcher.Constraint("PointOnObject", 21, 3, -2))
sketch4.addConstraint(Sketcher.Constraint("PointOnObject", 22, 3, -2))
sketch4.addConstraint(Sketcher.Constraint("Horizontal", 5, 3, 6, 3))
sketch4.addConstraint(Sketcher.Constraint("Horizontal", 6, 3, 7, 3))
sketch4.addConstraint(Sketcher.Constraint("Horizontal", 8, 3, 9, 3))
sketch4.addConstraint(Sketcher.Constraint("Horizontal", 9, 3, 10, 3))
sketch4.addConstraint(Sketcher.Constraint("Horizontal", 10, 3, 11, 3))
sketch4.addConstraint(Sketcher.Constraint("Horizontal", 12, 3, 13, 3))
sketch4.addConstraint(Sketcher.Constraint("Horizontal", 13, 3, 14, 3))
sketch4.addConstraint(Sketcher.Constraint("Horizontal", 14, 3, 15, 3))
sketch4.addConstraint(Sketcher.Constraint("Horizontal", 16, 3, 17, 3))
sketch4.addConstraint(Sketcher.Constraint("Horizontal", 17, 3, 18, 3))
sketch4.addConstraint(Sketcher.Constraint("Horizontal", 18, 3, 19, 3))
sketch4.addConstraint(Sketcher.Constraint("Horizontal", 7, 3, 20, 3))
sketch4.addConstraint(Sketcher.Constraint("Horizontal", 15, 3, 21, 3))
sketch4.addConstraint(Sketcher.Constraint("Horizontal", 19, 3, 22, 3))
sketch4.addConstraint(Sketcher.Constraint("Vertical", 1, 3, 5, 3))
sketch4.addConstraint(Sketcher.Constraint("Vertical", 3, 3, 6, 3))
sketch4.addConstraint(Sketcher.Constraint("Vertical", 4, 3, 7, 3))
sketch4.addConstraint(Sketcher.Constraint("Vertical", 5, 3, 8, 3))
sketch4.addConstraint(Sketcher.Constraint("Vertical", 2, 3, 9, 3))
sketch4.addConstraint(Sketcher.Constraint("Vertical", 6, 3, 10, 3))
sketch4.addConstraint(Sketcher.Constraint("Vertical", 7, 3, 11, 3))
sketch4.addConstraint(Sketcher.Constraint("Vertical", 8, 3, 12, 3))
sketch4.addConstraint(Sketcher.Constraint("Vertical", 9, 3, 13, 3))
sketch4.addConstraint(Sketcher.Constraint("Vertical", 10, 3, 14, 3))
sketch4.addConstraint(Sketcher.Constraint("Vertical", 11, 3, 15, 3))
sketch4.addConstraint(Sketcher.Constraint("Vertical", 12, 3, 16, 3))
sketch4.addConstraint(Sketcher.Constraint("Vertical", 13, 3, 17, 3))
sketch4.addConstraint(Sketcher.Constraint("Vertical", 14, 3, 18, 3))
sketch4.addConstraint(Sketcher.Constraint("Vertical", 15, 3, 19, 3))
sketch4.addConstraint(Sketcher.Constraint("Diameter", 0, Q("3 mm")))
sketch4.addConstraint(Sketcher.Constraint("DistanceX", 1, 3, -1, 1, Q("10 mm")))
sketch4.addConstraint(Sketcher.Constraint("DistanceX", 2, 3, -1, 1, Q("20 mm")))
sketch4.addConstraint(Sketcher.Constraint("DistanceX", 3, 3, -1, 1, Q("30 mm")))
sketch4.addConstraint(Sketcher.Constraint("DistanceX", 4, 3, -1, 1, Q("40 mm")))
sketch4.addConstraint(Sketcher.Constraint("DistanceY", 5, 3, -1, 1, Q("10 mm")))
sketch4.addConstraint(Sketcher.Constraint("DistanceY", 8, 3, -1, 1, Q("20 mm")))
sketch4.addConstraint(Sketcher.Constraint("DistanceY", 12, 3, -1, 1, Q("30 mm")))
sketch4.addConstraint(Sketcher.Constraint("DistanceY", 16, 3, -1, 1, Q("40 mm")))
pocket3 = body.newObject("PartDesign::Pocket", "Pocket002")
pocket3.Profile = sketch4
pocket3.Type = "ThroughAll"
pocket3.Reversed = True
doc.recompute()

fillet = body.newObject("PartDesign::Fillet", "Fillet")
fillet.Base = (pocket3, edges_at(pocket3, [
    (45, 1.5, 45),
    (-45, 1.5, 45),
    (-45, 1.5, -45),
    (45, 1.5, -45),
]))
fillet.Radius = 4

sketch5 = body.newObject("Sketcher::SketchObject", "Sketch004")
sketch5.AttachmentSupport = (doc.getObject("XZ_Plane"), [""])
sketch5.MapMode = "FlatFace"
sketch5.AttachmentOffset = App.Placement(Vector(0, 0, -3), App.Rotation())
sketch5.addGeometry(Part.Circle(Vector(0, -19, 0), Vector(0, 0, 1), 2.1), False)
sketch5.addGeometry(Part.Circle(Vector(16.5, -9.5, 0), Vector(0, 0, 1), 2.1), False)
sketch5.addGeometry(Part.Circle(Vector(16.5, 9.5, 0), Vector(0, 0, 1), 2.1), False)
sketch5.addGeometry(Part.Circle(Vector(0, 19, 0), Vector(0, 0, 1), 2.1), False)
sketch5.addGeometry(Part.Circle(Vector(-16.5, 9.5, 0), Vector(0, 0, 1), 2.1), False)
sketch5.addGeometry(Part.Circle(Vector(-16.5, -9.5, 0), Vector(0, 0, 1), 2.1), False)
sketch5.addConstraint(Sketcher.Constraint("Equal", 0, 1))
sketch5.addConstraint(Sketcher.Constraint("Equal", 1, 2))
sketch5.addConstraint(Sketcher.Constraint("Equal", 2, 3))
sketch5.addConstraint(Sketcher.Constraint("Equal", 3, 4))
sketch5.addConstraint(Sketcher.Constraint("Equal", 4, 5))
sketch5.addConstraint(Sketcher.Constraint("Symmetric", 0, 3, 3, 3, -1, 1))
sketch5.addConstraint(Sketcher.Constraint("Symmetric", 1, 3, 4, 3, -1, 1))
sketch5.addConstraint(Sketcher.Constraint("Symmetric", 2, 3, 5, 3, -1, 1))
sketch5.addConstraint(Sketcher.Constraint("Symmetric", 2, 3, 4, 3, -2))
sketch5.addConstraint(Sketcher.Constraint("PointOnObject", 0, 3, -2))
sketch5.addConstraint(Sketcher.Constraint("Diameter", 0, Q("4.2 mm")))
sketch5.addConstraint(Sketcher.Constraint("DistanceY", 0, 3, -1, 1, Q("19 mm")))
sketch5.addConstraint(Sketcher.Constraint("DistanceY", 1, 3, 2, 3, Q("19 mm")))
sketch5.addConstraint(Sketcher.Constraint("DistanceX", -1, 1, 1, 3, Q("16.454483 mm")))
pocket4 = body.newObject("PartDesign::Pocket", "Pocket003")
pocket4.Profile = sketch5
pocket4.Type = "ThroughAll"
pocket4.Reversed = True

doc.recompute()
